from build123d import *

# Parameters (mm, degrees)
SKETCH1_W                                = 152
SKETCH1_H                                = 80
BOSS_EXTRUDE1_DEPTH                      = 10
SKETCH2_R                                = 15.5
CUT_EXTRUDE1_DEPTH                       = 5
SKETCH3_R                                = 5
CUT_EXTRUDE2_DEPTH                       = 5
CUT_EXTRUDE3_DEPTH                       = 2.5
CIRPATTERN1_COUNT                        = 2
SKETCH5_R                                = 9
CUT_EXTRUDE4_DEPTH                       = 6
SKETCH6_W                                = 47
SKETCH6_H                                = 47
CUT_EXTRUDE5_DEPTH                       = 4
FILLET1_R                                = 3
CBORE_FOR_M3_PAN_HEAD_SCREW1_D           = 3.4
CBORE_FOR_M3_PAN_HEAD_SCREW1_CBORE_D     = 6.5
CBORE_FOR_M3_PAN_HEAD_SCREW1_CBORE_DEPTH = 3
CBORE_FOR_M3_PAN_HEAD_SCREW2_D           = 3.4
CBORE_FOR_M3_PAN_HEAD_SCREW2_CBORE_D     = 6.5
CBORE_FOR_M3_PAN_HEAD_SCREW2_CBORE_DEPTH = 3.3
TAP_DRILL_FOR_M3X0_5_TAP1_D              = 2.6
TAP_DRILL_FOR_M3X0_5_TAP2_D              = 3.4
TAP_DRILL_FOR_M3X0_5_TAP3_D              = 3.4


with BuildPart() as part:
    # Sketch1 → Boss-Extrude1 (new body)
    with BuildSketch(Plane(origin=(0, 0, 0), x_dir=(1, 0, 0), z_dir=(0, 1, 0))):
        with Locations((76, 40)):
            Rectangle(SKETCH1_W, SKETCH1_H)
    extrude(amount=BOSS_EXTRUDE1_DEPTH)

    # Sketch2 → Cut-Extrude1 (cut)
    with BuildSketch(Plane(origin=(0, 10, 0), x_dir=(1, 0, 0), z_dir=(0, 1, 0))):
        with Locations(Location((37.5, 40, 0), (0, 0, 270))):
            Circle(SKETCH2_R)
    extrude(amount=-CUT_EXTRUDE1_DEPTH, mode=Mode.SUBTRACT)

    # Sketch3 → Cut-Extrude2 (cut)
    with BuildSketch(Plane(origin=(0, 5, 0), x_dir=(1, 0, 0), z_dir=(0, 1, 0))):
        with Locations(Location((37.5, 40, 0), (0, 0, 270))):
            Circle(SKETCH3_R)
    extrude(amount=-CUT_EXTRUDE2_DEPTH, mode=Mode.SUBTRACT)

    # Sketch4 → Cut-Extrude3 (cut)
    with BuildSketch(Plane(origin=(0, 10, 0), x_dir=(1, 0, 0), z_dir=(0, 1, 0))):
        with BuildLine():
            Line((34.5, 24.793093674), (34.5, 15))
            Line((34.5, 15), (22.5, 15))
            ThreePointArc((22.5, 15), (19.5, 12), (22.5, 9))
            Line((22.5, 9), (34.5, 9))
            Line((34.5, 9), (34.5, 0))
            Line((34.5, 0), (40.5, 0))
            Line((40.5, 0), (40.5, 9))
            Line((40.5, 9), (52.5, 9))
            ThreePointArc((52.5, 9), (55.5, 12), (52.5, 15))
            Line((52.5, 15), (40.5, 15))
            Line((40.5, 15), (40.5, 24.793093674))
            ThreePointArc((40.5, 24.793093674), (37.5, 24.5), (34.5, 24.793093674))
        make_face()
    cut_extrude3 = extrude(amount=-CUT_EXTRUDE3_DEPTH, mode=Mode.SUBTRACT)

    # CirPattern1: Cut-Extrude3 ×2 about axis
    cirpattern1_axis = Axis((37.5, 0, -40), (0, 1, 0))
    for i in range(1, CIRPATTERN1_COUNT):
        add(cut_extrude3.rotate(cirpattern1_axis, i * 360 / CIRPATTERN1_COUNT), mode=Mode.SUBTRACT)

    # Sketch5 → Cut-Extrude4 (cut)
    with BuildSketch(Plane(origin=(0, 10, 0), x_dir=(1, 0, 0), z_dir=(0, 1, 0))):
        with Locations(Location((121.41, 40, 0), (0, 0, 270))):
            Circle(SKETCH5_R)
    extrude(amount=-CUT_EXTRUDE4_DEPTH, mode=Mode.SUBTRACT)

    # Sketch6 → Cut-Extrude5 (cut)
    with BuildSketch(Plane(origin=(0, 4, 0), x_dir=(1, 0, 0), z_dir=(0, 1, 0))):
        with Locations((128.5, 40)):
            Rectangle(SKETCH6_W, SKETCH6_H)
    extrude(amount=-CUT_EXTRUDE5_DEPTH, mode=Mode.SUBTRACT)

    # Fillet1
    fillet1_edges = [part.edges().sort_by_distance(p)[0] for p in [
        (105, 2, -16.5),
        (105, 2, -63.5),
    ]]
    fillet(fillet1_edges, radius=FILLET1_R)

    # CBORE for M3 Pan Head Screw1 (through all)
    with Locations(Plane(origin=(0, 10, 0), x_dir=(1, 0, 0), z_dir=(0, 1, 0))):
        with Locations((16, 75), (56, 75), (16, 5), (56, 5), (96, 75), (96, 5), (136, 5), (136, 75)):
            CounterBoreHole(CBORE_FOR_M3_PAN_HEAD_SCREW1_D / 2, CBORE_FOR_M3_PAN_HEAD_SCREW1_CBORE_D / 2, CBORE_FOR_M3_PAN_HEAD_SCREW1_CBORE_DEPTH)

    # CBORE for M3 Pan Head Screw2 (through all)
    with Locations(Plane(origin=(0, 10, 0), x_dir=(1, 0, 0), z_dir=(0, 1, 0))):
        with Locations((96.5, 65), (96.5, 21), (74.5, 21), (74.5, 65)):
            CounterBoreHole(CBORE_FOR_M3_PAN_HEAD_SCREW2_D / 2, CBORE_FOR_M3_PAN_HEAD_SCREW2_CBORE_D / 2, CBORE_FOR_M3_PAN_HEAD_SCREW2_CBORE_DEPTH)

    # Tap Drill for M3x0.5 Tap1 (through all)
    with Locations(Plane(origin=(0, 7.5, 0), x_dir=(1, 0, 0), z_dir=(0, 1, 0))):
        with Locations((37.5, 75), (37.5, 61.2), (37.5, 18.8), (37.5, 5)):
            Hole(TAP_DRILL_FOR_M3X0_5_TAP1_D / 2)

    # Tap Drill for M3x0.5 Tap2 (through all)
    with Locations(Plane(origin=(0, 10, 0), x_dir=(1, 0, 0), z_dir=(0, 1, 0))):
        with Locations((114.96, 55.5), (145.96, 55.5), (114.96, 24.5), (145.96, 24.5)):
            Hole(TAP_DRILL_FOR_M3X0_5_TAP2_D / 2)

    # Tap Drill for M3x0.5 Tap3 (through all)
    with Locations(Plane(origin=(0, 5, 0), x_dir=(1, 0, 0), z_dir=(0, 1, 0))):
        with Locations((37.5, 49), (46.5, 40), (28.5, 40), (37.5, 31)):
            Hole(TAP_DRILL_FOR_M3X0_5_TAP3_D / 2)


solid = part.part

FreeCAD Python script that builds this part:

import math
import FreeCAD as App
import Part
import Sketcher

V = App.Vector


def edges_at(feature, points):
    """Names of the edges that pass closest to the given points."""
    edges = feature.Shape.Edges
    near = lambda p: min(range(len(edges)), key=lambda i: edges[i].distToShape(Part.Vertex(*p))[0])
    return sorted({f"Edge{near(p) + 1}" for p in points})


def add_polygon(sketch, points):
    """Adds a closed chain of lines whose ends are joined by coincident constraints."""
    first, n = sketch.GeometryCount, len(points)
    for a, b in zip(points, points[1:] + points[:1]):
        sketch.addGeometry(Part.LineSegment(App.Vector(*a, 0), App.Vector(*b, 0)), False)
    for i in range(n):
        sketch.addConstraint(Sketcher.Constraint("Coincident", first + i, 2, first + (i + 1) % n, 1))

doc = App.newDocument("Part")
body = doc.addObject("PartDesign::Body", "Body")

# Sketch on XZ plane
sketch1 = doc.addObject("Sketcher::SketchObject", "Sketch")
body.addObject(sketch1)
sketch1.AttachmentSupport = (doc.XZ_Plane, [""])
sketch1.MapMode = "FlatFace"
add_polygon(sketch1, [(0, -80), (0, 0), (152, 0), (152, -80)])  # lines 0-3
sketch1.addConstraint([
    Sketcher.Constraint("Vertical", 0),
    Sketcher.Constraint("Horizontal", 1),
    Sketcher.Constraint("Vertical", 2),
    Sketcher.Constraint("Horizontal", 3),
    Sketcher.Constraint("Coincident", 0, 2, -1, 1),
    Sketcher.Constraint("DistanceX", 1, 1, 1, 2, 152.0),
    Sketcher.Constraint("DistanceY", 0, 1, 0, 2, 80.0),
])
pad1 = doc.addObject("PartDesign::Pad", "Pad")
body.addObject(pad1)
pad1.Profile = sketch1
pad1.Length = 10
pad1.Reversed = True

# Sketch on XZ plane
sketch2 = doc.addObject("Sketcher::SketchObject", "Sketch001")
body.addObject(sketch2)
sketch2.AttachmentSupport = (doc.XZ_Plane, [""])
sketch2.MapMode = "FlatFace"
sketch2.AttachmentOffset = App.Placement(V(0, 0, -10), App.Rotation())
sketch2.addGeometry(Part.Circle(V(38, -40, 0), V(0, 0, 1), 16), False)
sketch2.addConstraint([
    Sketcher.Constraint("Diameter", 0, 31.0),
    Sketcher.Constraint("DistanceY", 0, 3, -1, 1, 40.0),
    Sketcher.Constraint("DistanceX", -1, 1, 0, 3, 37.5),
])
pocket1 = doc.addObject("PartDesign::Pocket", "Pocket")
body.addObject(pocket1)
pocket1.Profile = sketch2
pocket1.Length = 5
pocket1.Reversed = True

# Sketch on XZ plane
sketch3 = doc.addObject("Sketcher::SketchObject", "Sketch002")
body.addObject(sketch3)
sketch3.AttachmentSupport = (doc.XZ_Plane, [""])
sketch3.MapMode = "FlatFace"
sketch3.AttachmentOffset = App.Placement(V(0, 0, -5), App.Rotation())
sketch3.addGeometry(Part.Circle(V(38, -40, 0), V(0, 0, 1), 5), False)
sketch3.addConstraint([
    Sketcher.Constraint("Diameter", 0, 10.0),
    Sketcher.Constraint("DistanceY", 0, 3, -1, 1, 40.0),
    Sketcher.Constraint("DistanceX", -1, 1, 0, 3, 37.5),
])
pocket2 = doc.addObject("PartDesign::Pocket", "Pocket001")
body.addObject(pocket2)
pocket2.Profile = sketch3
pocket2.Length = 5
pocket2.Reversed = True

# Sketch on XZ plane
sketch4 = doc.addObject("Sketcher::SketchObject", "Sketch003")
body.addObject(sketch4)
sketch4.AttachmentSupport = (doc.XZ_Plane, [""])
sketch4.MapMode = "FlatFace"
sketch4.AttachmentOffset = App.Placement(V(0, 0, -10), App.Rotation())
sketch4.addGeometry([
    Part.LineSegment(V(34.5, -24.8, 0), V(34.5, -15, 0)),  # 0
    Part.LineSegment(V(34.5, -15, 0), V(22.5, -15, 0)),  # 1
    Part.ArcOfCircle(Part.Circle(V(22.5, -12, 0), V(0, 0, 1), 3), math.radians(90), math.radians(270)),  # 2
    Part.LineSegment(V(22.5, -9, 0), V(34.5, -9, 0)),  # 3
    Part.LineSegment(V(34.5, -9, 0), V(34.5, 0, 0)),  # 4
    Part.LineSegment(V(34.5, 0, 0), V(40.5, 0, 0)),  # 5
    Part.LineSegment(V(40.5, 0, 0), V(40.5, -9, 0)),  # 6
    Part.LineSegment(V(40.5, -9, 0), V(52.5, -9, 0)),  # 7
    Part.ArcOfCircle(Part.Circle(V(52.5, -12, 0), V(0, 0, 1), 3), math.radians(-90), math.radians(90)),  # 8
    Part.LineSegment(V(52.5, -15, 0), V(40.5, -15, 0)),  # 9
    Part.LineSegment(V(40.5, -15, 0), V(40.5, -24.8, 0)),  # 10
    Part.ArcOfCircle(Part.Circle(V(37.5, -40, 0), V(0, 0, 1), 15.5), math.radians(79), math.radians(101)),  # 11
], False)
sketch4.addConstraint([
    Sketcher.Constraint("Coincident", 0, 2, 1, 1),
    Sketcher.Constraint("Tangent", 1, 2, 2, 2),
    Sketcher.Constraint("Tangent", 2, 1, 3, 1),
    Sketcher.Constraint("Coincident", 3, 2, 4, 1),
    Sketcher.Constraint("Coincident", 4, 2, 5, 1),
    Sketcher.Constraint("Coincident", 5, 2, 6, 1),
    Sketcher.Constraint("Coincident", 6, 2, 7, 1),
    Sketcher.Constraint("Tangent", 7, 2, 8, 2),
    Sketcher.Constraint("Tangent", 8, 1, 9, 1),
    Sketcher.Constraint("Coincident", 9, 2, 10, 1),
    Sketcher.Constraint("Coincident", 10, 2, 11, 1),
    Sketcher.Constraint("Coincident", 11, 2, 0, 1),
    Sketcher.Constraint("Vertical", 0),
    Sketcher.Constraint("Horizontal", 1),
    Sketcher.Constraint("Horizontal", 3),
    Sketcher.Constraint("Vertical", 4),
    Sketcher.Constraint("Horizontal", 5),
    Sketcher.Constraint("Vertical", 6),
    Sketcher.Constraint("Horizontal", 7),
    Sketcher.Constraint("Horizontal", 9),
    Sketcher.Constraint("Vertical", 10),
    Sketcher.Constraint("Equal", 2, 8),
    Sketcher.Constraint("PointOnObject", 4, 2, -1),
    Sketcher.Constraint("Horizontal", 2, 3, 8, 3),
    Sketcher.Constraint("Horizontal", 10, 2, 11, 2),
    Sketcher.Constraint("Vertical", 0, 2, 3, 2),
    Sketcher.Constraint("Vertical", 6, 2, 9, 2),
    Sketcher.Constraint("Equal", 3, 7),
    Sketcher.Constraint("Radius", 2, 3.0),
    Sketcher.Constraint("Radius", 11, 15.5),
    Sketcher.Constraint("DistanceX", 1, 2, 1, 1, 12.0),
    Sketcher.Constraint("DistanceX", 5, 1, 5, 2, 6.0),
    Sketcher.Constraint("DistanceY", 4, 1, 4, 2, 9.0),
    Sketcher.Constraint("DistanceY", 11, 3, -1, 1, 40.0),
    Sketcher.Constraint("DistanceX", -1, 1, 2, 3, 22.5),
])
pocket3 = doc.addObject("PartDesign::Pocket", "Pocket002")
body.addObject(pocket3)
pocket3.Profile = sketch4
pocket3.Length = 2.5
pocket3.Reversed = True
doc.recompute()

datumline = doc.addObject("PartDesign::Line", "DatumLine")
body.addObject(datumline)
datumline.Placement = App.Placement(V(37.5, 0, -40), App.Rotation(V(0, 0, 1), V(0, 1, 0)))
polarpattern = doc.addObject("PartDesign::PolarPattern", "PolarPattern")
body.addObject(polarpattern)
polarpattern.Originals = [pocket3]
polarpattern.Axis = (datumline, [""])
polarpattern.Angle = 360
polarpattern.Occurrences = 2
body.Tip = polarpattern

# Sketch on XZ plane
sketch5 = doc.addObject("Sketcher::SketchObject", "Sketch004")
body.addObject(sketch5)
sketch5.AttachmentSupport = (doc.XZ_Plane, [""])
sketch5.MapMode = "FlatFace"
sketch5.AttachmentOffset = App.Placement(V(0, 0, -10), App.Rotation())
sketch5.addGeometry(Part.Circle(V(121, -40, 0), V(0, 0, 1), 9), False)
sketch5.addConstraint([
    Sketcher.Constraint("Diameter", 0, 18.0),
    Sketcher.Constraint("DistanceY", 0, 3, -1, 1, 40.0),
    Sketcher.Constraint("DistanceX", -1, 1, 0, 3, 121.41),
])
pocket4 = doc.addObject("PartDesign::Pocket", "Pocket003")
body.addObject(pocket4)
pocket4.Profile = sketch5
pocket4.Length = 6
pocket4.Reversed = True

# Sketch on XZ plane
sketch6 = doc.addObject("Sketcher::SketchObject", "Sketch005")
body.addObject(sketch6)
sketch6.AttachmentSupport = (doc.XZ_Plane, [""])
sketch6.MapMode = "FlatFace"
sketch6.AttachmentOffset = App.Placement(V(0, 0, -4), App.Rotation())
add_polygon(sketch6, [(105, -64), (105, -16), (152, -16), (152, -64)])  # lines 0-3
sketch6.addConstraint([
    Sketcher.Constraint("Vertical", 0),
    Sketcher.Constraint("Horizontal", 1),
    Sketcher.Constraint("Vertical", 2),
    Sketcher.Constraint("Horizontal", 3),
    Sketcher.Constraint("Equal", 3, 0),
    Sketcher.Constraint("DistanceX", 1, 1, 1, 2, 47.0),
    Sketcher.Constraint("DistanceX", -1, 1, 0, 2, 105.0),
    Sketcher.Constraint("DistanceY", 0, 2, -1, 1, 16.5),
])
pocket5 = doc.addObject("PartDesign::Pocket", "Pocket004")
body.addObject(pocket5)
pocket5.Profile = sketch6
pocket5.Length = 4
pocket5.Reversed = True
doc.recompute()

fillet = doc.addObject("PartDesign::Fillet", "Fillet")
body.addObject(fillet)
fillet.Base = (pocket5, edges_at(pocket5, [(105, 2, -16.5), (105, 2, -63.5)]))
fillet.Radius = 3

# Sketch on XZ plane
sketch7 = doc.addObject("Sketcher::SketchObject", "Sketch006")
body.addObject(sketch7)
sketch7.AttachmentSupport = (doc.XZ_Plane, [""])
sketch7.MapMode = "FlatFace"
sketch7.AttachmentOffset = App.Placement(V(0, 0, -10), App.Rotation())
sketch7.addGeometry([
    Part.Circle(V(16, -75, 0), V(0, 0, 1), 1.7),  # 0
    Part.Circle(V(56, -75, 0), V(0, 0, 1), 1.7),  # 1
    Part.Circle(V(16, -5, 0), V(0, 0, 1), 1.7),  # 2
    Part.Circle(V(56, -5, 0), V(0, 0, 1), 1.7),  # 3
    Part.Circle(V(96, -75, 0), V(0, 0, 1), 1.7),  # 4
    Part.Circle(V(96, -5, 0), V(0, 0, 1), 1.7),  # 5
    Part.Circle(V(136, -5, 0), V(0, 0, 1), 1.7),  # 6
    Part.Circle(V(136, -75, 0), V(0, 0, 1), 1.7),  # 7
], False)
sketch7.addConstraint([
    Sketcher.Constraint("Equal", 0, 1),
    Sketcher.Constraint("Equal", 1, 2),
    Sketcher.Constraint("Equal", 2, 3),
    Sketcher.Constraint("Equal", 3, 4),
    Sketcher.Constraint("Equal", 4, 5),
    Sketcher.Constraint("Equal", 5, 6),
    Sketcher.Constraint("Equal", 6, 7),
    Sketcher.Constraint("Horizontal", 0, 3, 1, 3),
    Sketcher.Constraint("Horizontal", 2, 3, 3, 3),
    Sketcher.Constraint("Horizontal", 1, 3, 4, 3),
    Sketcher.Constraint("Horizontal", 3, 3, 5, 3),
    Sketcher.Constraint("Horizontal", 5, 3, 6, 3),
    Sketcher.Constraint("Horizontal", 4, 3, 7, 3),
    Sketcher.Constraint("Vertical", 0, 3, 2, 3),
    Sketcher.Constraint("Vertical", 1, 3, 3, 3),
    Sketcher.Constraint("Vertical", 4, 3, 5, 3),
    Sketcher.Constraint("Vertical", 6, 3, 7, 3),
    Sketcher.Constraint("Diameter", 0, 3.4),
    Sketcher.Constraint("DistanceX", -1, 1, 0, 3, 16.0),
    Sketcher.Constraint("DistanceY", 0, 3, -1, 1, 75.0),
    Sketcher.Constraint("DistanceX", -1, 1, 1, 3, 56.0),
    Sketcher.Constraint("DistanceY", 2, 3, -1, 1, 5.0),
    Sketcher.Constraint("DistanceX", -1, 1, 4, 3, 96.0),
    Sketcher.Constraint("DistanceX", -1, 1, 6, 3, 136.0),
])
doc.recompute()
hole = doc.addObject("PartDesign::Hole", "Hole")
body.addObject(hole)
hole.Profile = sketch7
hole.ThreadType = "None"
hole.Diameter = 3.4
hole.DepthType = "ThroughAll"
hole.HoleCutType = "Counterbore"
hole.HoleCutDiameter = 6.5
hole.HoleCutDepth = 3
hole.Reversed = True

# Sketch on XZ plane
sketch8 = doc.addObject("Sketcher::SketchObject", "Sketch007")
body.addObject(sketch8)
sketch8.AttachmentSupport = (doc.XZ_Plane, [""])
sketch8.MapMode = "FlatFace"
sketch8.AttachmentOffset = App.Placement(V(0, 0, -10), App.Rotation())
sketch8.addGeometry([
    Part.Circle(V(96.5, -65, 0), V(0, 0, 1), 1.7),
    Part.Circle(V(96.5, -21, 0), V(0, 0, 1), 1.7),
    Part.Circle(V(74.5, -21, 0), V(0, 0, 1), 1.7),
    Part.Circle(V(74.5, -65, 0), V(0, 0, 1), 1.7),
], False)
sketch8.addConstraint([
    Sketcher.Constraint("Equal", 0, 1),
    Sketcher.Constraint("Equal", 1, 2),
    Sketcher.Constraint("Equal", 2, 3),
    Sketcher.Constraint("Horizontal", 1, 3, 2, 3),
    Sketcher.Constraint("Horizontal", 0, 3, 3, 3),
    Sketcher.Constraint("Vertical", 0, 3, 1, 3),
    Sketcher.Constraint("Vertical", 2, 3, 3, 3),
    Sketcher.Constraint("Diameter", 0, 3.4),
    Sketcher.Constraint("DistanceY", 0, 3, -1, 1, 65.0),
    Sketcher.Constraint("DistanceY", 1, 3, -1, 1, 21.0),
    Sketcher.Constraint("DistanceX", 2, 3, 1, 3, 22.0),
    Sketcher.Constraint("DistanceX", -1, 1, 0, 3, 96.5),
])
doc.recompute()
hole2 = doc.addObject("PartDesign::Hole", "Hole001")
body.addObject(hole2)
hole2.Profile = sketch8
hole2.ThreadType = "None"
hole2.Diameter = 3.4
hole2.DepthType = "ThroughAll"
hole2.HoleCutType = "Counterbore"
hole2.HoleCutDiameter = 6.5
hole2.HoleCutDepth = 3.3
hole2.Reversed = True

# Sketch on XZ plane
sketch9 = doc.addObject("Sketcher::SketchObject", "Sketch008")
body.addObject(sketch9)
sketch9.AttachmentSupport = (doc.XZ_Plane, [""])
sketch9.MapMode = "FlatFace"
sketch9.AttachmentOffset = App.Placement(V(0, 0, -7.5), App.Rotation())
sketch9.addGeometry([
    Part.Circle(V(37.5, -75, 0), V(0, 0, 1), 1.3),
    Part.Circle(V(37.5, -61.2, 0), V(0, 0, 1), 1.3),
    Part.Circle(V(37.5, -18.8, 0), V(0, 0, 1), 1.3),
    Part.Circle(V(37.5, -5, 0), V(0, 0, 1), 1.3),
], False)
sketch9.addConstraint([
    Sketcher.Constraint("Equal", 0, 1),
    Sketcher.Constraint("Equal", 1, 2),
    Sketcher.Constraint("Equal", 2, 3),
    Sketcher.Constraint("Vertical", 0, 3, 1, 3),
    Sketcher.Constraint("Vertical", 1, 3, 2, 3),
    Sketcher.Constraint("Vertical", 2, 3, 3, 3),
    Sketcher.Constraint("Diameter", 0, 2.6),
    Sketcher.Constraint("DistanceY", 0, 3, -1, 1, 75.0),
    Sketcher.Constraint("DistanceY", 3, 3, -1, 1, 5.0),
    Sketcher.Constraint("DistanceX", -1, 1, 0, 3, 37.5),
    Sketcher.Constraint("DistanceY", 1, 3, -1, 1, 61.2),
    Sketcher.Constraint("DistanceY", 2, 3, -1, 1, 18.8),
])
doc.recompute()
hole3 = doc.addObject("PartDesign::Hole", "Hole002")
body.addObject(hole3)
hole3.Profile = sketch9
hole3.ThreadType = "None"
hole3.Diameter = 2.6
hole3.DepthType = "ThroughAll"
hole3.Reversed = True

# Sketch on XZ plane
sketch10 = doc.addObject("Sketcher::SketchObject", "Sketch009")
body.addObject(sketch10)
sketch10.AttachmentSupport = (doc.XZ_Plane, [""])
sketch10.MapMode = "FlatFace"
sketch10.AttachmentOffset = App.Placement(V(0, 0, -10), App.Rotation())
sketch10.addGeometry([
    Part.Circle(V(115, -55.5, 0), V(0, 0, 1), 1.7),
    Part.Circle(V(146, -55.5, 0), V(0, 0, 1), 1.7),
    Part.Circle(V(115, -24.5, 0), V(0, 0, 1), 1.7),
    Part.Circle(V(146, -24.5, 0), V(0, 0, 1), 1.7),
], False)
sketch10.addConstraint([
    Sketcher.Constraint("Equal", 0, 1),
    Sketcher.Constraint("Equal", 1, 2),
    Sketcher.Constraint("Equal", 2, 3),
    Sketcher.Constraint("Horizontal", 0, 3, 1, 3),
    Sketcher.Constraint("Horizontal", 2, 3, 3, 3),
    Sketcher.Constraint("Vertical", 0, 3, 2, 3),
    Sketcher.Constraint("Vertical", 1, 3, 3, 3),
    Sketcher.Constraint("Diameter", 0, 3.4),
    Sketcher.Constraint("DistanceX", 0, 3, 1, 3, 31.0),
    Sketcher.Constraint("DistanceY", 0, 3, 2, 3, 31.0),
    Sketcher.Constraint("DistanceY", 0, 3, -1, 1, 55.5),
    Sketcher.Constraint("DistanceX", -1, 1, 0, 3, 114.96),
])
doc.recompute()
hole4 = doc.addObject("PartDesign::Hole", "Hole003")
body.addObject(hole4)
hole4.Profile = sketch10
hole4.ThreadType = "None"
hole4.Diameter = 3.4
hole4.DepthType = "ThroughAll"
hole4.Reversed = True

# Sketch on XZ plane
sketch11 = doc.addObject("Sketcher::SketchObject", "Sketch010")
body.addObject(sketch11)
sketch11.AttachmentSupport = (doc.XZ_Plane, [""])
sketch11.MapMode = "FlatFace"
sketch11.AttachmentOffset = App.Placement(V(0, 0, -5), App.Rotation())
sketch11.addGeometry([
    Part.Circle(V(37.5, -49, 0), V(0, 0, 1), 1.7),
    Part.Circle(V(46.5, -40, 0), V(0, 0, 1), 1.7),
    Part.Circle(V(28.5, -40, 0), V(0, 0, 1), 1.7),
    Part.Circle(V(37.5, -31, 0), V(0, 0, 1), 1.7),
], False)
sketch11.addConstraint([
    Sketcher.Constraint("Equal", 0, 1),
    Sketcher.Constraint("Equal", 1, 2),
    Sketcher.Constraint("Equal", 2, 3),
    Sketcher.Constraint("Horizontal", 1, 3, 2, 3),
    Sketcher.Constraint("Vertical", 0, 3, 3, 3),
    Sketcher.Constraint("Diameter", 0, 3.4),
    Sketcher.Constraint("DistanceY", 0, 3, -1, 1, 49.0),
    Sketcher.Constraint("DistanceY", 1, 3, -1, 1, 40.0),
    Sketcher.Constraint("DistanceY", 3, 3, -1, 1, 31.0),
    Sketcher.Constraint("DistanceX", 0, 3, 1, 3, 9.0),
    Sketcher.Constraint("DistanceX", 2, 3, 0, 3, 9.0),
    Sketcher.Constraint("DistanceX", -1, 1, 0, 3, 37.5),
])
doc.recompute()
hole5 = doc.addObject("PartDesign::Hole", "Hole004")
body.addObject(hole5)
hole5.Profile = sketch11
hole5.ThreadType = "None"
hole5.Diameter = 3.4
hole5.DepthType = "ThroughAll"
hole5.Reversed = True

doc.recompute()
